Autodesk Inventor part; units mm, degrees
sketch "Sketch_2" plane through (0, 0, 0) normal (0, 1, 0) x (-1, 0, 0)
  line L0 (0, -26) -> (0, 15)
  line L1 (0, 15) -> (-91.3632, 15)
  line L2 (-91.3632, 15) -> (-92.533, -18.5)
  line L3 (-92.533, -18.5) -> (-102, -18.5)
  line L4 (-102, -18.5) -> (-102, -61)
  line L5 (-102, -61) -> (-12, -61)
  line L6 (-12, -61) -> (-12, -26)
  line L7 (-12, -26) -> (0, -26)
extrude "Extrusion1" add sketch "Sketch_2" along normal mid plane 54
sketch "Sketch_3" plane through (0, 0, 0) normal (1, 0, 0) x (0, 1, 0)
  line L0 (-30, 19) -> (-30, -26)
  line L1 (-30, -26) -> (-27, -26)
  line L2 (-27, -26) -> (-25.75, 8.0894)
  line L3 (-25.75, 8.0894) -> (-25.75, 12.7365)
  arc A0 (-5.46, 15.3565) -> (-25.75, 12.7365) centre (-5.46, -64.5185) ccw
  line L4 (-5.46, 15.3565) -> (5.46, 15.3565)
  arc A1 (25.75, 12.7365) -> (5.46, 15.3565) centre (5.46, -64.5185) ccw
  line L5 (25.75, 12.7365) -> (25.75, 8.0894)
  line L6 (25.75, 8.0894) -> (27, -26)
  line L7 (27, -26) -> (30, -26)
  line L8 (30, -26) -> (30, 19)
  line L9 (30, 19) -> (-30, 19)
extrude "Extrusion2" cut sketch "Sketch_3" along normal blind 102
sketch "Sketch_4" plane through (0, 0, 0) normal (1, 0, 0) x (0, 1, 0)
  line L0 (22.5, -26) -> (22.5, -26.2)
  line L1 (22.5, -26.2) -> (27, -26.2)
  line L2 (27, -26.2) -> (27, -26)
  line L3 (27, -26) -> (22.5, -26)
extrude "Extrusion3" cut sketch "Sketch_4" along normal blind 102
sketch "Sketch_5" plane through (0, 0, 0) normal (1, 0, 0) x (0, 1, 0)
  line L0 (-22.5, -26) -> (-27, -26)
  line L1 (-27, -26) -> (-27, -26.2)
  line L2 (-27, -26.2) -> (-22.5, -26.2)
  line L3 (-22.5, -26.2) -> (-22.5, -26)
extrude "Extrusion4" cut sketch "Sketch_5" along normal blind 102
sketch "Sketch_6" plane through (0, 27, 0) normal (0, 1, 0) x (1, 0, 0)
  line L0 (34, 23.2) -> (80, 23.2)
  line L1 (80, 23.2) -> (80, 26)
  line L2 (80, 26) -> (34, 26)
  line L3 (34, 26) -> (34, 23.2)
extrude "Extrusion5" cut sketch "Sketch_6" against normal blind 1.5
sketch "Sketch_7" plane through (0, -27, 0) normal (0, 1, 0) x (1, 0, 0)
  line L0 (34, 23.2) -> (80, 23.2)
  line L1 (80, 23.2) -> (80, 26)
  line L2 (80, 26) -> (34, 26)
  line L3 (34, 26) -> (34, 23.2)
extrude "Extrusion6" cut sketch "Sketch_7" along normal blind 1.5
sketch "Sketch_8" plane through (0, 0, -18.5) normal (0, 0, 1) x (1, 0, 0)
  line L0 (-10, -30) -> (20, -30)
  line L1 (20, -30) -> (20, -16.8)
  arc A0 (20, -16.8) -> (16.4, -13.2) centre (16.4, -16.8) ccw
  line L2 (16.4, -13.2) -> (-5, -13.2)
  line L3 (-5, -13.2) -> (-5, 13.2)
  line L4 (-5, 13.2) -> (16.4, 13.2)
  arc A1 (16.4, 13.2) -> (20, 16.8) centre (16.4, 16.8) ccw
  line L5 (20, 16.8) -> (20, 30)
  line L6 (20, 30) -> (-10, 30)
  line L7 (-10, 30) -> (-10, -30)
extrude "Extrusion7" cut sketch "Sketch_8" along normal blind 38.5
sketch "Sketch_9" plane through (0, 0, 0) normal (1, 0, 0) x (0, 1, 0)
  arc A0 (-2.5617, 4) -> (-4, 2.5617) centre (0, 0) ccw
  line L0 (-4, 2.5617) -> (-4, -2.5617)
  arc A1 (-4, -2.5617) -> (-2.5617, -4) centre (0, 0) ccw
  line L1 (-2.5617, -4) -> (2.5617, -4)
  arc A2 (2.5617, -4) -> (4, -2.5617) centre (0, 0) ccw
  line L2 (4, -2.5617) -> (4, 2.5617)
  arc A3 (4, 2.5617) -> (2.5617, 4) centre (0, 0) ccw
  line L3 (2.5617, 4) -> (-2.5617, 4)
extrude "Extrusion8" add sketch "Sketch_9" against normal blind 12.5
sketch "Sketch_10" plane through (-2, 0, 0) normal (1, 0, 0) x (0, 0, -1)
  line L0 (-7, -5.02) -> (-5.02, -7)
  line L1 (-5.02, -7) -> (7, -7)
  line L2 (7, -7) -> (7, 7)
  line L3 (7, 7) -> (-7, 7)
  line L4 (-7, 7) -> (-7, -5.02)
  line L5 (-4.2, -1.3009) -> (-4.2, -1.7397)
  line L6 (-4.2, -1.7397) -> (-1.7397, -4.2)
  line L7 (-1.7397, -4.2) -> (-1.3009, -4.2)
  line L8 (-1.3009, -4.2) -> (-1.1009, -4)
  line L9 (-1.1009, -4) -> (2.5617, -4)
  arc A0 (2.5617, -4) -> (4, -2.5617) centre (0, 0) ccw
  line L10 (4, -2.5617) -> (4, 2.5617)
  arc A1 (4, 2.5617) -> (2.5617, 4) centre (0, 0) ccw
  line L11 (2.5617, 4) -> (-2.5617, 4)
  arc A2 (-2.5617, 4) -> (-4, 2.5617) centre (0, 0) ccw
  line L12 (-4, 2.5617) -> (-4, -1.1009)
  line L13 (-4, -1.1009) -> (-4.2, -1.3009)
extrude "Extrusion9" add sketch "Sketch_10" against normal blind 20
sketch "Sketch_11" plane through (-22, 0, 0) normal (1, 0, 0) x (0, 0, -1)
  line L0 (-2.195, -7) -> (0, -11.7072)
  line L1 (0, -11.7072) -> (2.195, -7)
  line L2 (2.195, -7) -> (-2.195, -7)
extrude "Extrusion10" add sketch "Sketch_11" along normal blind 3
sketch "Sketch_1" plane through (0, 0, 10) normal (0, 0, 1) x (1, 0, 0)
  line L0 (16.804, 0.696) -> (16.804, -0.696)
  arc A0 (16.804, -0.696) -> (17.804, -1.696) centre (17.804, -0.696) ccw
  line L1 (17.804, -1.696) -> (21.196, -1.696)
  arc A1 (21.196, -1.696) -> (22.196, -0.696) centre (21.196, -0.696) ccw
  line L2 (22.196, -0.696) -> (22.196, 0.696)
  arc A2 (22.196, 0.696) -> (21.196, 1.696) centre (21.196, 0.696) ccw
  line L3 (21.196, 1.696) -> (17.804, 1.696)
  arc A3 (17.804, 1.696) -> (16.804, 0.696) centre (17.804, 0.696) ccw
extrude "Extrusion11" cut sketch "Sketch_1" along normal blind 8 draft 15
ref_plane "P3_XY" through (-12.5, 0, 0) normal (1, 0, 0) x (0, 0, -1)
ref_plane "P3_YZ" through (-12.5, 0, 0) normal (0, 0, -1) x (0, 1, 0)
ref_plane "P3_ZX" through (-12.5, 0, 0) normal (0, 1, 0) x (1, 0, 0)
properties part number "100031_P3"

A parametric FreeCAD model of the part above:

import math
import FreeCAD as App
import Part
import Sketcher
from FreeCAD import Vector
Q = App.Units.Quantity

doc = App.newDocument("Part")
body = doc.addObject("PartDesign::Body", "Body")

sketch1 = doc.addObject("Sketcher::SketchObject", "Sketch")
body.addObject(sketch1)
sketch1.AttachmentSupport = (doc.XZ_Plane, [""])
sketch1.MapMode = "FlatFace"
sketch1.addGeometry([
    Part.LineSegment(Vector(12, -26, 0), Vector(0, -26, 0)),
    Part.LineSegment(Vector(0, -26, 0), Vector(0, 15, 0)),
    Part.LineSegment(Vector(0, 15, 0), Vector(91.3632, 15, 0)),
    Part.LineSegment(Vector(91.3632, 15, 0), Vector(92.533, -18.5, 0)),
    Part.LineSegment(Vector(92.533, -18.5, 0), Vector(102, -18.5, 0)),
    Part.LineSegment(Vector(102, -18.5, 0), Vector(102, -61, 0)),
    Part.LineSegment(Vector(102, -61, 0), Vector(12, -61, 0)),
    Part.LineSegment(Vector(12, -61, 0), Vector(12, -26, 0)),
], False)
sketch1.addConstraint([
    Sketcher.Constraint("Coincident", 0, 2, 1, 1),
    Sketcher.Constraint("Coincident", 1, 2, 2, 1),
    Sketcher.Constraint("Coincident", 2, 2, 3, 1),
    Sketcher.Constraint("Coincident", 3, 2, 4, 1),
    Sketcher.Constraint("Coincident", 4, 2, 5, 1),
    Sketcher.Constraint("Coincident", 5, 2, 6, 1),
    Sketcher.Constraint("Coincident", 6, 2, 7, 1),
    Sketcher.Constraint("Coincident", 7, 2, 0, 1),
    Sketcher.Constraint("Horizontal", 0),
    Sketcher.Constraint("Vertical", 1),
    Sketcher.Constraint("Horizontal", 2),
    Sketcher.Constraint("Horizontal", 4),
    Sketcher.Constraint("Vertical", 5),
    Sketcher.Constraint("Horizontal", 6),
    Sketcher.Constraint("Vertical", 7),
    Sketcher.Constraint("PointOnObject", 0, 2, -2),
    Sketcher.Constraint("DistanceX", 0, 2, 0, 1, Q("12 mm")),
    Sketcher.Constraint("DistanceX", 6, 2, 6, 1, Q("90 mm")),
    Sketcher.Constraint("DistanceY", 1, 1, 1, 2, Q("41 mm")),
    Sketcher.Constraint("DistanceY", 7, 1, 7, 2, Q("35 mm")),
    Sketcher.Constraint("Angle", 3, Q("-88 deg")),
    Sketcher.Constraint("DistanceY", 5, 2, 5, 1, Q("42.5 mm")),
    Sketcher.Constraint("DistanceY", 0, 2, -1, 1, Q("26 mm")),
    Sketcher.Constraint("DistanceX", 4, 1, 4, 2, Q("9.467 mm")),
])
pad1 = doc.addObject("PartDesign::Pad", "Pad")
body.addObject(pad1)
pad1.Profile = sketch1
pad1.Length = 54
pad1.Midplane = True

sketch2 = doc.addObject("Sketcher::SketchObject", "Sketch001")
body.addObject(sketch2)
sketch2.AttachmentSupport = (doc.YZ_Plane, [""])
sketch2.MapMode = "FlatFace"
sketch2.addGeometry([
    Part.LineSegment(Vector(30, 19, 0), Vector(-30, 19, 0)),
    Part.LineSegment(Vector(-30, 19, 0), Vector(-30, -26, 0)),
    Part.LineSegment(Vector(-30, -26, 0), Vector(-27, -26, 0)),
    Part.LineSegment(Vector(-27, -26, 0), Vector(-25.75, 8.0894, 0)),
    Part.LineSegment(Vector(-25.75, 8.0894, 0), Vector(-25.75, 12.7365, 0)),
    Part.ArcOfCircle(Part.Circle(Vector(-5.459914, -64.51983, 0), Vector(0, 0, 1), 79.87633), math.radians(90.000061), math.radians(104.715449)),
    Part.LineSegment(Vector(-5.46, 15.3565, 0), Vector(5.46, 15.3565, 0)),
    Part.ArcOfCircle(Part.Circle(Vector(5.460255, -64.517192, 0), Vector(0, 0, 1), 79.873692), math.radians(75.284306), math.radians(90.000183)),
    Part.LineSegment(Vector(25.75, 12.7365, 0), Vector(25.75, 8.0894, 0)),
    Part.LineSegment(Vector(25.75, 8.0894, 0), Vector(27, -26, 0)),
    Part.LineSegment(Vector(27, -26, 0), Vector(30, -26, 0)),
    Part.LineSegment(Vector(30, -26, 0), Vector(30, 19, 0)),
], False)
sketch2.addConstraint([
    Sketcher.Constraint("Coincident", 0, 2, 1, 1),
    Sketcher.Constraint("Coincident", 1, 2, 2, 1),
    Sketcher.Constraint("Coincident", 2, 2, 3, 1),
    Sketcher.Constraint("Coincident", 3, 2, 4, 1),
    Sketcher.Constraint("Coincident", 4, 2, 5, 2),
    Sketcher.Constraint("Tangent", 5, 1, 6, 1),
    Sketcher.Constraint("Tangent", 6, 2, 7, 2),
    Sketcher.Constraint("Coincident", 7, 1, 8, 1),
    Sketcher.Constraint("Coincident", 8, 2, 9, 1),
    Sketcher.Constraint("Coincident", 9, 2, 10, 1),
    Sketcher.Constraint("Coincident", 10, 2, 11, 1),
    Sketcher.Constraint("Coincident", 11, 2, 0, 1),
    Sketcher.Constraint("Horizontal", 0),
    Sketcher.Constraint("Vertical", 1),
    Sketcher.Constraint("Horizontal", 2),
    Sketcher.Constraint("Vertical", 4),
    Sketcher.Constraint("Horizontal", 6),
    Sketcher.Constraint("Vertical", 8),
    Sketcher.Constraint("Horizontal", 10),
    Sketcher.Constraint("Vertical", 11),
    Sketcher.Constraint("Symmetric", 4, 2, 7, 1, -2),
    Sketcher.Constraint("Symmetric", 2, 2, 9, 2, -2),
    Sketcher.Constraint("Horizontal", 3, 2, 8, 2),
    Sketcher.Constraint("Equal", 2, 10),
    Sketcher.Constraint("DistanceX", 0, 2, 0, 1, Q("60 mm")),
    Sketcher.Constraint("DistanceX", 2, 1, 2, 2, Q("3 mm")),
    Sketcher.Constraint("DistanceY", 1, 2, 1, 1, Q("45 mm")),
    Sketcher.Constraint("DistanceY", -1, 1, 0, 2, Q("19 mm")),
    Sketcher.Constraint("Angle", 3, Q("87.9 deg")),
    Sketcher.Constraint("DistanceX", 6, 1, 6, 2, Q("10.92 mm")),
    Sketcher.Constraint("Radius", 5, Q("79.8763 mm")),
    Sketcher.Constraint("Radius", 7, Q("79.8737 mm")),
    Sketcher.Constraint("DistanceX", 3, 2, 8, 2, Q("51.5 mm")),
    Sketcher.Constraint("DistanceY", 4, 1, 4, 2, Q("4.647 mm")),
])
pocket1 = doc.addObject("PartDesign::Pocket", "Pocket")
body.addObject(pocket1)
pocket1.Profile = sketch2
pocket1.Length = 102
pocket1.Reversed = True

sketch3 = doc.addObject("Sketcher::SketchObject", "Sketch002")
body.addObject(sketch3)
sketch3.AttachmentSupport = (doc.YZ_Plane, [""])
sketch3.MapMode = "FlatFace"
sketch3.addGeometry([
    Part.LineSegment(Vector(27, -26, 0), Vector(22.5, -26, 0)),
    Part.LineSegment(Vector(22.5, -26, 0), Vector(22.5, -26.2, 0)),
    Part.LineSegment(Vector(22.5, -26.2, 0), Vector(27, -26.2, 0)),
    Part.LineSegment(Vector(27, -26.2, 0), Vector(27, -26, 0)),
], False)
sketch3.addConstraint([
    Sketcher.Constraint("Coincident", 0, 2, 1, 1),
    Sketcher.Constraint("Coincident", 1, 2, 2, 1),
    Sketcher.Constraint("Coincident", 2, 2, 3, 1),
    Sketcher.Constraint("Coincident", 3, 2, 0, 1),
    Sketcher.Constraint("Horizontal", 0),
    Sketcher.Constraint("Vertical", 1),
    Sketcher.Constraint("Horizontal", 2),
    Sketcher.Constraint("Vertical", 3),
    Sketcher.Constraint("DistanceX", 0, 2, 0, 1, Q("4.5 mm")),
    Sketcher.Constraint("DistanceY", 1, 2, 1, 1, Q("0.2 mm")),
    Sketcher.Constraint("DistanceY", 0, 2, -1, 1, Q("26 mm")),
    Sketcher.Constraint("DistanceX", -1, 1, 2, 2, Q("27 mm")),
])
pocket2 = doc.addObject("PartDesign::Pocket", "Pocket001")
body.addObject(pocket2)
pocket2.Profile = sketch3
pocket2.Length = 102
pocket2.Reversed = True

sketch4 = doc.addObject("Sketcher::SketchObject", "Sketch003")
body.addObject(sketch4)
sketch4.AttachmentSupport = (doc.YZ_Plane, [""])
sketch4.MapMode = "FlatFace"
sketch4.addGeometry([
    Part.LineSegment(Vector(-22.5, -26.2, 0), Vector(-22.5, -26, 0)),
    Part.LineSegment(Vector(-22.5, -26, 0), Vector(-27, -26, 0)),
    Part.LineSegment(Vector(-27, -26, 0), Vector(-27, -26.2, 0)),
    Part.LineSegment(Vector(-27, -26.2, 0), Vector(-22.5, -26.2, 0)),
], False)
sketch4.addConstraint([
    Sketcher.Constraint("Coincident", 0, 2, 1, 1),
    Sketcher.Constraint("Coincident", 1, 2, 2, 1),
    Sketcher.Constraint("Coincident", 2, 2, 3, 1),
    Sketcher.Constraint("Coincident", 3, 2, 0, 1),
    Sketcher.Constraint("Vertical", 0),
    Sketcher.Constraint("Horizontal", 1),
    Sketcher.Constraint("Vertical", 2),
    Sketcher.Constraint("Horizontal", 3),
    Sketcher.Constraint("DistanceX", 1, 2, 1, 1, Q("4.5 mm")),
    Sketcher.Constraint("DistanceY", 0, 1, 0, 2, Q("0.2 mm")),
    Sketcher.Constraint("DistanceY", 0, 2, -1, 1, Q("26 mm")),
    Sketcher.Constraint("DistanceX", 1, 2, -1, 1, Q("27 mm")),
])
pocket3 = doc.addObject("PartDesign::Pocket", "Pocket002")
body.addObject(pocket3)
pocket3.Profile = sketch4
pocket3.Length = 102
pocket3.Reversed = True

sketch5 = doc.addObject("Sketcher::SketchObject", "Sketch004")
body.addObject(sketch5)
sketch5.AttachmentSupport = (doc.XZ_Plane, [""])
sketch5.MapMode = "FlatFace"
sketch5.AttachmentOffset = App.Placement(Vector(0, 0, -27), App.Rotation())
sketch5.addGeometry([
    Part.LineSegment(Vector(34, -26, 0), Vector(34, -23.2, 0)),
    Part.LineSegment(Vector(34, -23.2, 0), Vector(80, -23.2, 0)),
    Part.LineSegment(Vector(80, -23.2, 0), Vector(80, -26, 0)),
    Part.LineSegment(Vector(80, -26, 0), Vector(34, -26, 0)),
], False)
sketch5.addConstraint([
    Sketcher.Constraint("Coincident", 0, 2, 1, 1),
    Sketcher.Constraint("Coincident", 1, 2, 2, 1),
    Sketcher.Constraint("Coincident", 2, 2, 3, 1),
    Sketcher.Constraint("Coincident", 3, 2, 0, 1),
    Sketcher.Constraint("Vertical", 0),
    Sketcher.Constraint("Horizontal", 1),
    Sketcher.Constraint("Vertical", 2),
    Sketcher.Constraint("Horizontal", 3),
    Sketcher.Constraint("DistanceX", 1, 1, 1, 2, Q("46 mm")),
    Sketcher.Constraint("DistanceY", 0, 1, 0, 2, Q("2.8 mm")),
    Sketcher.Constraint("DistanceX", -1, 1, 0, 2, Q("34 mm")),
    Sketcher.Constraint("DistanceY", 2, 2, -1, 1, Q("26 mm")),
])
pocket4 = doc.addObject("PartDesign::Pocket", "Pocket003")
body.addObject(pocket4)
pocket4.Profile = sketch5
pocket4.Length = 1.5
pocket4.Reversed = True

sketch6 = doc.addObject("Sketcher::SketchObject", "Sketch005")
body.addObject(sketch6)
sketch6.AttachmentSupport = (doc.XZ_Plane, [""])
sketch6.MapMode = "FlatFace"
sketch6.AttachmentOffset = App.Placement(Vector(0, 0, 27), App.Rotation())
sketch6.addGeometry([
    Part.LineSegment(Vector(34, -26, 0), Vector(34, -23.2, 0)),
    Part.LineSegment(Vector(34, -23.2, 0), Vector(80, -23.2, 0)),
    Part.LineSegment(Vector(80, -23.2, 0), Vector(80, -26, 0)),
    Part.LineSegment(Vector(80, -26, 0), Vector(34, -26, 0)),
], False)
sketch6.addConstraint([
    Sketcher.Constraint("Coincident", 0, 2, 1, 1),
    Sketcher.Constraint("Coincident", 1, 2, 2, 1),
    Sketcher.Constraint("Coincident", 2, 2, 3, 1),
    Sketcher.Constraint("Coincident", 3, 2, 0, 1),
    Sketcher.Constraint("Vertical", 0),
    Sketcher.Constraint("Horizontal", 1),
    Sketcher.Constraint("Vertical", 2),
    Sketcher.Constraint("Horizontal", 3),
    Sketcher.Constraint("DistanceX", 1, 1, 1, 2, Q("46 mm")),
    Sketcher.Constraint("DistanceY", 0, 1, 0, 2, Q("2.8 mm")),
    Sketcher.Constraint("DistanceX", -1, 1, 0, 2, Q("34 mm")),
    Sketcher.Constraint("DistanceY", 2, 2, -1, 1, Q("26 mm")),
])
pocket5 = doc.addObject("PartDesign::Pocket", "Pocket004")
body.addObject(pocket5)
pocket5.Profile = sketch6
pocket5.Length = 1.5

sketch7 = doc.addObject("Sketcher::SketchObject", "Sketch006")
body.addObject(sketch7)
sketch7.AttachmentSupport = (doc.XY_Plane, [""])
sketch7.MapMode = "FlatFace"
sketch7.AttachmentOffset = App.Placement(Vector(0, 0, -18.5), App.Rotation())
sketch7.addGeometry([
    Part.LineSegment(Vector(-10, 30, 0), Vector(-10, -30, 0)),
    Part.LineSegment(Vector(-10, -30, 0), Vector(20, -30, 0)),
    Part.LineSegment(Vector(20, -30, 0), Vector(20, -16.8, 0)),
    Part.ArcOfCircle(Part.Circle(Vector(16.4, -16.8, 0), Vector(0, 0, 1), 3.6), math.radians(0), math.radians(90)),
    Part.LineSegment(Vector(16.4, -13.2, 0), Vector(-5, -13.2, 0)),
    Part.LineSegment(Vector(-5, -13.2, 0), Vector(-5, 13.2, 0)),
    Part.LineSegment(Vector(-5, 13.2, 0), Vector(16.4, 13.2, 0)),
    Part.ArcOfCircle(Part.Circle(Vector(16.4, 16.8, 0), Vector(0, 0, 1), 3.6), math.radians(-90), math.radians(0)),
    Part.LineSegment(Vector(20, 16.8, 0), Vector(20, 30, 0)),
    Part.LineSegment(Vector(20, 30, 0), Vector(-10, 30, 0)),
], False)
sketch7.addConstraint([
    Sketcher.Constraint("Coincident", 0, 2, 1, 1),
    Sketcher.Constraint("Coincident", 1, 2, 2, 1),
    Sketcher.Constraint("Tangent", 2, 2, 3, 1),
    Sketcher.Constraint("Tangent", 3, 2, 4, 1),
    Sketcher.Constraint("Coincident", 4, 2, 5, 1),
    Sketcher.Constraint("Coincident", 5, 2, 6, 1),
    Sketcher.Constraint("Tangent", 6, 2, 7, 1),
    Sketcher.Constraint("Tangent", 7, 2, 8, 1),
    Sketcher.Constraint("Coincident", 8, 2, 9, 1),
    Sketcher.Constraint("Coincident", 9, 2, 0, 1),
    Sketcher.Constraint("Vertical", 0),
    Sketcher.Constraint("Horizontal", 1),
    Sketcher.Constraint("Vertical", 2),
    Sketcher.Constraint("Horizontal", 4),
    Sketcher.Constraint("Vertical", 5),
    Sketcher.Constraint("Horizontal", 6),
    Sketcher.Constraint("Vertical", 8),
    Sketcher.Constraint("Horizontal", 9),
    Sketcher.Constraint("Equal", 3, 7),
    Sketcher.Constraint("Symmetric", 3, 3, 7, 3, -1),
    Sketcher.Constraint("Equal", 2, 8),
    Sketcher.Constraint("Radius", 3, Q("3.6 mm")),
    Sketcher.Constraint("DistanceX", 1, 1, 1, 2, Q("30 mm")),
    Sketcher.Constraint("DistanceY", 0, 2, 0, 1, Q("60 mm")),
    Sketcher.Constraint("DistanceX", 4, 2, 4, 1, Q("21.4 mm")),
    Sketcher.Constraint("DistanceY", 2, 1, 2, 2, Q("13.2 mm")),
    Sketcher.Constraint("DistanceX", 0, 2, -1, 1, Q("10 mm")),
])
pocket6 = doc.addObject("PartDesign::Pocket", "Pocket005")
body.addObject(pocket6)
pocket6.Profile = sketch7
pocket6.Length = 38.5
pocket6.Reversed = True

sketch8 = doc.addObject("Sketcher::SketchObject", "Sketch007")
body.addObject(sketch8)
sketch8.AttachmentSupport = (doc.YZ_Plane, [""])
sketch8.MapMode = "FlatFace"
sketch8.addGeometry([
    Part.LineSegment(Vector(2.5617, 4, 0), Vector(-2.5617, 4, 0)),
    Part.ArcOfCircle(Part.Circle(Vector(0, 0, 0), Vector(0, 0, 1), 4.74998), math.radians(122.636515), math.radians(147.363485)),
    Part.LineSegment(Vector(-4, 2.5617, 0), Vector(-4, -2.5617, 0)),
    Part.ArcOfCircle(Part.Circle(Vector(0, 0, 0), Vector(0, 0, 1), 4.74998), math.radians(-147.363485), math.radians(-122.636515)),
    Part.LineSegment(Vector(-2.5617, -4, 0), Vector(2.5617, -4, 0)),
    Part.ArcOfCircle(Part.Circle(Vector(0, 0, 0), Vector(0, 0, 1), 4.74998), math.radians(-57.363485), math.radians(-32.636515)),
    Part.LineSegment(Vector(4, -2.5617, 0), Vector(4, 2.5617, 0)),
    Part.ArcOfCircle(Part.Circle(Vector(0, 0, 0), Vector(0, 0, 1), 4.74998), math.radians(32.636515), math.radians(57.363485)),
], False)
sketch8.addConstraint([
    Sketcher.Constraint("Coincident", 0, 2, 1, 1),
    Sketcher.Constraint("Coincident", 1, 2, 2, 1),
    Sketcher.Constraint("Coincident", 2, 2, 3, 1),
    Sketcher.Constraint("Coincident", 3, 2, 4, 1),
    Sketcher.Constraint("Coincident", 4, 2, 5, 1),
    Sketcher.Constraint("Coincident", 5, 2, 6, 1),
    Sketcher.Constraint("Coincident", 6, 2, 7, 1),
    Sketcher.Constraint("Coincident", 7, 2, 0, 1),
    Sketcher.Constraint("Horizontal", 0),
    Sketcher.Constraint("Vertical", 2),
    Sketcher.Constraint("Horizontal", 4),
    Sketcher.Constraint("Vertical", 6),
    Sketcher.Constraint("Coincident", 1, 3, -1, 1),
    Sketcher.Constraint("Coincident", 3, 3, -1, 1),
    Sketcher.Constraint("Coincident", 5, 3, -1, 1),
    Sketcher.Constraint("Coincident", 7, 3, -1, 1),
    Sketcher.Constraint("Equal", 1, 3),
    Sketcher.Constraint("Equal", 3, 5),
    Sketcher.Constraint("Equal", 5, 7),
    Sketcher.Constraint("Horizontal", 2, 2, 5, 2),
    Sketcher.Constraint("Vertical", 0, 2, 3, 2),
    Sketcher.Constraint("Equal", 4, 2),
    Sketcher.Constraint("Radius", 1, Q("4.75 mm")),
    Sketcher.Constraint("DistanceY", -1, 1, 0, 2, Q("4 mm")),
])
pad2 = doc.addObject("PartDesign::Pad", "Pad001")
body.addObject(pad2)
pad2.Profile = sketch8
pad2.Length = 12.5
pad2.Reversed = True

sketch9 = doc.addObject("Sketcher::SketchObject", "Sketch008")
body.addObject(sketch9)
sketch9.AttachmentSupport = (doc.YZ_Plane, [""])
sketch9.MapMode = "FlatFace"
sketch9.AttachmentOffset = App.Placement(Vector(0, 0, -2), App.Rotation())
sketch9.addGeometry([
    Part.LineSegment(Vector(7, 7, 0), Vector(-5.02, 7, 0)),
    Part.LineSegment(Vector(-5.02, 7, 0), Vector(-7, 5.02, 0)),
    Part.LineSegment(Vector(-7, 5.02, 0), Vector(-7, -7, 0)),
    Part.LineSegment(Vector(-7, -7, 0), Vector(7, -7, 0)),
    Part.LineSegment(Vector(7, -7, 0), Vector(7, 7, 0)),
    Part.LineSegment(Vector(-1.7397, 4.2, 0), Vector(-1.3009, 4.2, 0)),
    Part.LineSegment(Vector(-1.3009, 4.2, 0), Vector(-1.1009, 4, 0)),
    Part.LineSegment(Vector(-1.1009, 4, 0), Vector(2.5617, 4, 0)),
    Part.ArcOfCircle(Part.Circle(Vector(0, 0, 0), Vector(0, 0, 1), 4.74998), math.radians(32.636515), math.radians(57.363485)),
    Part.LineSegment(Vector(4, 2.5617, 0), Vector(4, -2.5617, 0)),
    Part.ArcOfCircle(Part.Circle(Vector(0, 0, 0), Vector(0, 0, 1), 4.74998), math.radians(-57.363485), math.radians(-32.636515)),
    Part.LineSegment(Vector(2.5617, -4, 0), Vector(-2.5617, -4, 0)),
    Part.ArcOfCircle(Part.Circle(Vector(0, 0, 0), Vector(0, 0, 1), 4.74998), math.radians(-147.363485), math.radians(-122.636515)),
    Part.LineSegment(Vector(-4, -2.5617, 0), Vector(-4, 1.1009, 0)),
    Part.LineSegment(Vector(-4, 1.1009, 0), Vector(-4.2, 1.3009, 0)),
    Part.LineSegment(Vector(-4.2, 1.3009, 0), Vector(-4.2, 1.7397, 0)),
    Part.LineSegment(Vector(-4.2, 1.7397, 0), Vector(-1.7397, 4.2, 0)),
], False)
sketch9.addConstraint([
    Sketcher.Constraint("Coincident", 0, 2, 1, 1),
    Sketcher.Constraint("Coincident", 1, 2, 2, 1),
    Sketcher.Constraint("Coincident", 2, 2, 3, 1),
    Sketcher.Constraint("Coincident", 3, 2, 4, 1),
    Sketcher.Constraint("Coincident", 4, 2, 0, 1),
    Sketcher.Constraint("Coincident", 5, 2, 6, 1),
    Sketcher.Constraint("Coincident", 6, 2, 7, 1),
    Sketcher.Constraint("Coincident", 7, 2, 8, 2),
    Sketcher.Constraint("Coincident", 8, 1, 9, 1),
    Sketcher.Constraint("Coincident", 9, 2, 10, 2),
    Sketcher.Constraint("Coincident", 10, 1, 11, 1),
    Sketcher.Constraint("Coincident", 11, 2, 12, 2),
    Sketcher.Constraint("Coincident", 12, 1, 13, 1),
    Sketcher.Constraint("Coincident", 13, 2, 14, 1),
    Sketcher.Constraint("Coincident", 14, 2, 15, 1),
    Sketcher.Constraint("Coincident", 15, 2, 16, 1),
    Sketcher.Constraint("Coincident", 16, 2, 5, 1),
    Sketcher.Constraint("Horizontal", 0),
    Sketcher.Constraint("Vertical", 2),
    Sketcher.Constraint("Horizontal", 3),
    Sketcher.Constraint("Vertical", 4),
    Sketcher.Constraint("Horizontal", 5),
    Sketcher.Constraint("Horizontal", 7),
    Sketcher.Constraint("Vertical", 9),
    Sketcher.Constraint("Horizontal", 11),
    Sketcher.Constraint("Vertical", 13),
    Sketcher.Constraint("Vertical", 15),
    Sketcher.Constraint("Coincident", 8, 3, -1, 1),
    Sketcher.Constraint("Coincident", 10, 3, -1, 1),
    Sketcher.Constraint("Coincident", 12, 3, -1, 1),
    Sketcher.Constraint("Equal", 8, 10),
    Sketcher.Constraint("Equal", 10, 12),
    Sketcher.Constraint("Symmetric", 2, 2, 4, 2, -1, 1),
    Sketcher.Constraint("Perpendicular", 1, 6),
    Sketcher.Constraint("Parallel", 6, 14),
    Sketcher.Constraint("Perpendicular", 14, 16),
    Sketcher.Constraint("Horizontal", 9, 2, 12, 1),
    Sketcher.Constraint("Vertical", 7, 2, 10, 1),
    Sketcher.Constraint("Equal", 0, 2),
    Sketcher.Constraint("Equal", 3, 4),
    Sketcher.Constraint("Equal", 11, 9),
    Sketcher.Constraint("Equal", 7, 13),
    Sketcher.Constraint("Equal", 5, 15),
    Sketcher.Constraint("DistanceX", 3, 1, 3, 2, Q("14 mm")),
    Sketcher.Constraint("Radius", 8, Q("4.75 mm")),
    Sketcher.Constraint("DistanceY", -1, 1, 6, 2, Q("4 mm")),
    Sketcher.Constraint("DistanceX", 0, 2, 0, 1, Q("12.02 mm")),
    Sketcher.Constraint("DistanceY", -1, 1, 5, 2, Q("4.2 mm")),
    Sketcher.Constraint("DistanceX", 5, 1, 5, 2, Q("0.4388 mm")),
    Sketcher.Constraint("DistanceX", 7, 1, 7, 2, Q("3.6626 mm")),
])
pad3 = doc.addObject("PartDesign::Pad", "Pad002")
body.addObject(pad3)
pad3.Profile = sketch9
pad3.Length = 20
pad3.Reversed = True

sketch10 = doc.addObject("Sketcher::SketchObject", "Sketch009")
body.addObject(sketch10)
sketch10.AttachmentSupport = (doc.YZ_Plane, [""])
sketch10.MapMode = "FlatFace"
sketch10.AttachmentOffset = App.Placement(Vector(0, 0, -22), App.Rotation())
sketch10.addGeometry([
    Part.LineSegment(Vector(-7, -2.195, 0), Vector(-7, 2.195, 0)),
    Part.LineSegment(Vector(-7, 2.195, 0), Vector(-11.7072, 0, 0)),
    Part.LineSegment(Vector(-11.7072, 0, 0), Vector(-7, -2.195, 0)),
], False)
sketch10.addConstraint([
    Sketcher.Constraint("Coincident", 0, 2, 1, 1),
    Sketcher.Constraint("Coincident", 1, 2, 2, 1),
    Sketcher.Constraint("Coincident", 2, 2, 0, 1),
    Sketcher.Constraint("Vertical", 0),
    Sketcher.Constraint("PointOnObject", 1, 2, -1),
    Sketcher.Constraint("Equal", 1, 2),
    Sketcher.Constraint("Angle", 1, Q("-155 deg")),
    Sketcher.Constraint("DistanceX", 0, 2, -1, 1, Q("7 mm")),
    Sketcher.Constraint("DistanceY", 0, 1, 0, 2, Q("4.39 mm")),
])
pad4 = doc.addObject("PartDesign::Pad", "Pad003")
body.addObject(pad4)
pad4.Profile = sketch10
pad4.Length = 3

sketch11 = doc.addObject("Sketcher::SketchObject", "Sketch010")
body.addObject(sketch11)
sketch11.AttachmentSupport = (doc.XY_Plane, [""])
sketch11.MapMode = "FlatFace"
sketch11.AttachmentOffset = App.Placement(Vector(0, 0, 10), App.Rotation())
sketch11.addGeometry([
    Part.ArcOfCircle(Part.Circle(Vector(17.804, 0.696, 0), Vector(0, 0, 1), 1), math.radians(90), math.radians(180)),
    Part.LineSegment(Vector(16.804, 0.696, 0), Vector(16.804, -0.696, 0)),
    Part.ArcOfCircle(Part.Circle(Vector(17.804, -0.696, 0), Vector(0, 0, 1), 1), math.radians(180), math.radians(270)),
    Part.LineSegment(Vector(17.804, -1.696, 0), Vector(21.196, -1.696, 0)),
    Part.ArcOfCircle(Part.Circle(Vector(21.196, -0.696, 0), Vector(0, 0, 1), 1), math.radians(-90), math.radians(0)),
    Part.LineSegment(Vector(22.196, -0.696, 0), Vector(22.196, 0.696, 0)),
    Part.ArcOfCircle(Part.Circle(Vector(21.196, 0.696, 0), Vector(0, 0, 1), 1), math.radians(0), math.radians(90)),
    Part.LineSegment(Vector(21.196, 1.696, 0), Vector(17.804, 1.696, 0)),
], False)
sketch11.addConstraint([
    Sketcher.Constraint("Tangent", 0, 2, 1, 1),
    Sketcher.Constraint("Tangent", 1, 2, 2, 1),
    Sketcher.Constraint("Tangent", 2, 2, 3, 1),
    Sketcher.Constraint("Tangent", 3, 2, 4, 1),
    Sketcher.Constraint("Tangent", 4, 2, 5, 1),
    Sketcher.Constraint("Tangent", 5, 2, 6, 1),
    Sketcher.Constraint("Tangent", 6, 2, 7, 1),
    Sketcher.Constraint("Tangent", 7, 2, 0, 1),
    Sketcher.Constraint("Vertical", 1),
    Sketcher.Constraint("Horizontal", 3),
    Sketcher.Constraint("Vertical", 5),
    Sketcher.Constraint("Horizontal", 7),
    Sketcher.Constraint("Equal", 0, 2),
    Sketcher.Constraint("Equal", 2, 4),
    Sketcher.Constraint("Equal", 4, 6),
    Sketcher.Constraint("Radius", 0, Q("1 mm")),
    Sketcher.Constraint("DistanceX", 3, 1, 3, 2, Q("3.392 mm")),
    Sketcher.Constraint("DistanceY", 1, 2, 1, 1, Q("1.392 mm")),
    Sketcher.Constraint("DistanceX", -1, 1, 0, 3, Q("17.804 mm")),
    Sketcher.Constraint("DistanceY", -1, 1, 0, 3, Q("0.696 mm")),
])
pocket7 = doc.addObject("PartDesign::Pocket", "Pocket006")
body.addObject(pocket7)
pocket7.Profile = sketch11
pocket7.Length = 8
pocket7.Reversed = True
pocket7.TaperAngle = 15

doc.recompute()
